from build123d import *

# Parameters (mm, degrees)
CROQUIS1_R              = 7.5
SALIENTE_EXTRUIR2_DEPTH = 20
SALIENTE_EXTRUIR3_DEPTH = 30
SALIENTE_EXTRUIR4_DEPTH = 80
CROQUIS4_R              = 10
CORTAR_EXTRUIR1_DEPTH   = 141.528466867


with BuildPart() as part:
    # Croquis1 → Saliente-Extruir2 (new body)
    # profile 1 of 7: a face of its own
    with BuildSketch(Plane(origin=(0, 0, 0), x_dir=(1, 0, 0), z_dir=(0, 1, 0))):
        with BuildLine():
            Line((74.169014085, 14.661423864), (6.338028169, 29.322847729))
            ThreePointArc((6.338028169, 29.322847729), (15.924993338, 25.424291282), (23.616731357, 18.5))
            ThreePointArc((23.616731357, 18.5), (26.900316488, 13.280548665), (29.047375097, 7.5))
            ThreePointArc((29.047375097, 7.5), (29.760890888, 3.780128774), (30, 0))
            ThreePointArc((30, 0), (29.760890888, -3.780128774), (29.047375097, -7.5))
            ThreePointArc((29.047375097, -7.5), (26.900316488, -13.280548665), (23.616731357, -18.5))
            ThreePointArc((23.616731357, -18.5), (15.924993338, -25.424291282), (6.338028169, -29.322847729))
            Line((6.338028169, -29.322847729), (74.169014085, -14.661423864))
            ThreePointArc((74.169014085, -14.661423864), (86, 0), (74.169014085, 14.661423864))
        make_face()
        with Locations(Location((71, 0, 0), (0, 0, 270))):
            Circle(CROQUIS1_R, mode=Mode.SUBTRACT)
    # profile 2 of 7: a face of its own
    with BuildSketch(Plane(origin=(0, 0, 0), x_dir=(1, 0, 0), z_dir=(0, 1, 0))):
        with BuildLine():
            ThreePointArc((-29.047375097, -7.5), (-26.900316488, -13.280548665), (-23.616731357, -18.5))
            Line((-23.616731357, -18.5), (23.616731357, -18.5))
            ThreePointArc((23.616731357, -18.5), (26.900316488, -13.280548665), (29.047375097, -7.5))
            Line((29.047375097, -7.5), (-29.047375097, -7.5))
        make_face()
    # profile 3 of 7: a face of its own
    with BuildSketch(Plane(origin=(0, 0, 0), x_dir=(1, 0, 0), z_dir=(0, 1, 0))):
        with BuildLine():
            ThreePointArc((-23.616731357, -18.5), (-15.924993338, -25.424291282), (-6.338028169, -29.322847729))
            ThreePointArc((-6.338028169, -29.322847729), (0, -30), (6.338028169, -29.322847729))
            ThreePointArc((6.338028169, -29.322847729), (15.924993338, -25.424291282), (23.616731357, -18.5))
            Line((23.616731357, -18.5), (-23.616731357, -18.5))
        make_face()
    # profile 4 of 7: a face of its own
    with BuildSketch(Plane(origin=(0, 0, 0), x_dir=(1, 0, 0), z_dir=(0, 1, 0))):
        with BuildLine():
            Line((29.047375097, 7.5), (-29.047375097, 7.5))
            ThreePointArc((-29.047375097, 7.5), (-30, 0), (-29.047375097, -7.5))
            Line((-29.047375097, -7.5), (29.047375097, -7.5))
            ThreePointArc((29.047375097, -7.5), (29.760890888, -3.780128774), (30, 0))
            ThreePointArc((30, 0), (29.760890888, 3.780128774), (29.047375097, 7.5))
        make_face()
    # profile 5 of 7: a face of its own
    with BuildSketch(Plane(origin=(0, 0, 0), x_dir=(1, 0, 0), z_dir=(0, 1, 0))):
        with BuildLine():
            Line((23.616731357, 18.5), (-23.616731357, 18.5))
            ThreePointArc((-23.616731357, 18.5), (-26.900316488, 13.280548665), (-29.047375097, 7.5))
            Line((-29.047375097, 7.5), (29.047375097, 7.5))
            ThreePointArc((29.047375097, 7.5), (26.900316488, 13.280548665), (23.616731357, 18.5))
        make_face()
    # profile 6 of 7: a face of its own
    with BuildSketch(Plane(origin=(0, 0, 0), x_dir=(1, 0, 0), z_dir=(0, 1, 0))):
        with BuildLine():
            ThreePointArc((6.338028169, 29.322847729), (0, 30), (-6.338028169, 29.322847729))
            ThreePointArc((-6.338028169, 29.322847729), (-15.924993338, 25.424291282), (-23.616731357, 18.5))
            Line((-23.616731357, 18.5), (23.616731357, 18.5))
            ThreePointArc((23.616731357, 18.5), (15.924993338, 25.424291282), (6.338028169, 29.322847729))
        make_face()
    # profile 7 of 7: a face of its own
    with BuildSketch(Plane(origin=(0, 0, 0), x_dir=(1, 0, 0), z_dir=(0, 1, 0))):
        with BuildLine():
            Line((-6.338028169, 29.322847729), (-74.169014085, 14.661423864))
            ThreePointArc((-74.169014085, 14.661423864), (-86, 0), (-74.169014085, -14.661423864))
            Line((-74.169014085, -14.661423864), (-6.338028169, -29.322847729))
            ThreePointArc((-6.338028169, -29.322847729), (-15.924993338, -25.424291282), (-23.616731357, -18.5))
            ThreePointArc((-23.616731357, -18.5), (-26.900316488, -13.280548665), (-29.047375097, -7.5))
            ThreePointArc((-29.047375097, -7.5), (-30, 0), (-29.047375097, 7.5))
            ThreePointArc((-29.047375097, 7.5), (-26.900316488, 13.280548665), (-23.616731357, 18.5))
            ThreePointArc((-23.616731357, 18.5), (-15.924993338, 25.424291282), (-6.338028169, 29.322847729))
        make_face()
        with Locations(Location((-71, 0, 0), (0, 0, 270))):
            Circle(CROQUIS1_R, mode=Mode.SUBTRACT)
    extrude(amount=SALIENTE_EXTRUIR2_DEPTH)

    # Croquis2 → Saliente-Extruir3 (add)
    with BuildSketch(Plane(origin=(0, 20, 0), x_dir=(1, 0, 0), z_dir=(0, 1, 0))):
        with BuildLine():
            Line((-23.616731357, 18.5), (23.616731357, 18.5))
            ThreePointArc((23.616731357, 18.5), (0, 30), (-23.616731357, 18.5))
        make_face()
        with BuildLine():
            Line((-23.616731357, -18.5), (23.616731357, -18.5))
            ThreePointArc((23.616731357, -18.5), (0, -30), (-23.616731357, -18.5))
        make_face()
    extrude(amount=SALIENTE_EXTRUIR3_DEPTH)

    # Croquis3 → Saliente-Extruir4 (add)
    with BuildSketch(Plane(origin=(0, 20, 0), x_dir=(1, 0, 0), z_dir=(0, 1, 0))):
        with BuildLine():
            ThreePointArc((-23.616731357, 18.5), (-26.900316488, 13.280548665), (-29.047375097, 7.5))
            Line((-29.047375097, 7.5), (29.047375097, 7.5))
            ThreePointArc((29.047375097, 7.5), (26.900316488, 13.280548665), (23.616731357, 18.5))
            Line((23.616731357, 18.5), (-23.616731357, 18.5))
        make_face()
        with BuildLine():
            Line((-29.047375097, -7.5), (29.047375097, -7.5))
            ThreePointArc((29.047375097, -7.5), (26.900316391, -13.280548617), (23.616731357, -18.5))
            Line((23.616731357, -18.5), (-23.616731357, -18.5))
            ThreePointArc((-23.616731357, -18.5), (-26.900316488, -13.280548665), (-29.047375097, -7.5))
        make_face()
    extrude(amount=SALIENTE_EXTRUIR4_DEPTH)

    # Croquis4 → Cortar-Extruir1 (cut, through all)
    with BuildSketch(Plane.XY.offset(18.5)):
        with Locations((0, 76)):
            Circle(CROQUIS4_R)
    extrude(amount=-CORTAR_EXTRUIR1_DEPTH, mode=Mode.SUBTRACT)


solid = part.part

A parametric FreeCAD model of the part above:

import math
import FreeCAD as App
import Part
import Sketcher

doc = App.newDocument("Part")
body = doc.addObject("PartDesign::Body", "Body")

# Sketch on XZ plane
sketch1 = body.newObject("Sketcher::SketchObject", "Sketch")
sketch1.AttachmentSupport = (doc.getObject("XZ_Plane"), [""])
sketch1.MapMode = "FlatFace"
sketch1.addGeometry([
    Part.LineSegment(App.Vector(74.169014, -14.661424, 0), App.Vector(6.338028, -29.322848, 0)),  # 0
    Part.ArcOfCircle(Part.Circle(App.Vector(0, 0, 0), App.Vector(0, 0, 1), 30), math.radians(-102.196648), math.radians(-77.803352)),  # 1
    Part.LineSegment(App.Vector(-6.338028, -29.322848, 0), App.Vector(-74.169014, -14.661424, 0)),  # 2
    Part.ArcOfCircle(Part.Circle(App.Vector(-71, 0, 0), App.Vector(0, 0, 1), 15), math.radians(102.196648), math.radians(257.803352)),  # 3
    Part.LineSegment(App.Vector(-74.169014, 14.661424, 0), App.Vector(-6.338028, 29.322848, 0)),  # 4
    Part.ArcOfCircle(Part.Circle(App.Vector(0, 0, 0), App.Vector(0, 0, 1), 30), math.radians(77.803352), math.radians(102.196648)),  # 5
    Part.LineSegment(App.Vector(6.338028, 29.322848, 0), App.Vector(74.169014, 14.661424, 0)),  # 6
    Part.ArcOfCircle(Part.Circle(App.Vector(71, 0, 0), App.Vector(0, 0, 1), 15), math.radians(-77.803352), math.radians(77.803352)),  # 7
    Part.Circle(App.Vector(71, 0, 0), App.Vector(0, 0, 1), 7.5),  # 8
    Part.Circle(App.Vector(-71, 0, 0), App.Vector(0, 0, 1), 7.5),  # 9
], False)
sketch1.addConstraint([
    Sketcher.Constraint("Tangent", 0, 2, 1, 2),
    Sketcher.Constraint("Tangent", 1, 1, 2, 1),
    Sketcher.Constraint("Tangent", 2, 2, 3, 2),
    Sketcher.Constraint("Tangent", 3, 1, 4, 1),
    Sketcher.Constraint("Tangent", 4, 2, 5, 2),
    Sketcher.Constraint("Tangent", 5, 1, 6, 1),
    Sketcher.Constraint("Tangent", 6, 2, 7, 2),
    Sketcher.Constraint("Tangent", 7, 1, 0, 1),
    Sketcher.Constraint("Coincident", 1, 3, -1, 1),
    Sketcher.Constraint("Coincident", 5, 3, -1, 1),
    Sketcher.Constraint("Coincident", 8, 3, 7, 3),
    Sketcher.Constraint("Coincident", 9, 3, 3, 3),
    Sketcher.Constraint("Equal", 1, 5),
    Sketcher.Constraint("Equal", 3, 7),
    Sketcher.Constraint("Equal", 8, 9),
    Sketcher.Constraint("Symmetric", 3, 3, 7, 3, -1, 1),
    Sketcher.Constraint("PointOnObject", 3, 3, -1),
    Sketcher.Constraint("Diameter", 8, 15.0),
    Sketcher.Constraint("Radius", 1, 30.0),
    Sketcher.Constraint("Radius", 3, 15.0),
    Sketcher.Constraint("DistanceX", 3, 3, -1, 1, 71.0),
])
pad1 = body.newObject("PartDesign::Pad", "Pad")
pad1.Profile = sketch1
pad1.Length = 20
pad1.Reversed = True

# Sketch on XZ plane
sketch2 = body.newObject("Sketcher::SketchObject", "Sketch001")
sketch2.AttachmentSupport = (doc.getObject("XZ_Plane"), [""])
sketch2.MapMode = "FlatFace"
sketch2.AttachmentOffset = App.Placement(App.Vector(0, 0, -20), App.Rotation())
sketch2.addGeometry([
    Part.LineSegment(App.Vector(-23.616731, -18.5, 0), App.Vector(23.616731, -18.5, 0)),
    Part.ArcOfCircle(Part.Circle(App.Vector(0, 0, 0), App.Vector(0, 0, 1), 30), math.radians(-141.926877), math.radians(-38.073123)),
    Part.LineSegment(App.Vector(23.616731, 18.5, 0), App.Vector(-23.616731, 18.5, 0)),
    Part.ArcOfCircle(Part.Circle(App.Vector(0, 0, 0), App.Vector(0, 0, 1), 30), math.radians(38.073123), math.radians(141.926877)),
], False)
sketch2.addConstraint([
    Sketcher.Constraint("Coincident", 0, 1, 1, 1),
    Sketcher.Constraint("Coincident", 1, 2, 0, 2),
    Sketcher.Constraint("Coincident", 2, 1, 3, 1),
    Sketcher.Constraint("Coincident", 3, 2, 2, 2),
    Sketcher.Constraint("Horizontal", 0),
    Sketcher.Constraint("Horizontal", 2),
    Sketcher.Constraint("Coincident", 1, 3, -1, 1),
    Sketcher.Constraint("Coincident", 3, 3, -1, 1),
    Sketcher.Constraint("Equal", 1, 3),
    Sketcher.Constraint("Vertical", 1, 2, 2, 1),
    Sketcher.Constraint("Radius", 1, 30.0),
    Sketcher.Constraint("DistanceY", 1, 2, 2, 1, 37.0),
])
pad2 = body.newObject("PartDesign::Pad", "Pad001")
pad2.Profile = sketch2
pad2.Length = 30
pad2.Reversed = True

# Sketch on XZ plane
sketch3 = body.newObject("Sketcher::SketchObject", "Sketch002")
sketch3.AttachmentSupport = (doc.getObject("XZ_Plane"), [""])
sketch3.MapMode = "FlatFace"
sketch3.AttachmentOffset = App.Placement(App.Vector(0, 0, -20), App.Rotation())
sketch3.addGeometry([
    Part.ArcOfCircle(Part.Circle(App.Vector(0, 0, 0), App.Vector(0, 0, 1), 30), math.radians(-165.522488), math.radians(-141.926877)),  # 0
    Part.LineSegment(App.Vector(-29.047375, -7.5, 0), App.Vector(29.047375, -7.5, 0)),  # 1
    Part.ArcOfCircle(Part.Circle(App.Vector(0, 0, 0), App.Vector(0, 0, 1), 30), math.radians(-38.073123), math.radians(-14.477512)),  # 2
    Part.LineSegment(App.Vector(23.616731, -18.5, 0), App.Vector(-23.616731, -18.5, 0)),  # 3
    Part.LineSegment(App.Vector(29.047375, 7.5, 0), App.Vector(-29.047375, 7.5, 0)),  # 4
    Part.ArcOfCircle(Part.Circle(App.Vector(0, 0, 0), App.Vector(0, 0, 1), 30), math.radians(141.926877), math.radians(165.522488)),  # 5
    Part.LineSegment(App.Vector(-23.616731, 18.5, 0), App.Vector(23.616731, 18.5, 0)),  # 6
    Part.ArcOfCircle(Part.Circle(App.Vector(-0.000005, -0.000002, 0), App.Vector(0, 0, 1), 30.000005), math.radians(14.477514), math.radians(38.073121)),  # 7
], False)
sketch3.addConstraint([
    Sketcher.Constraint("Coincident", 0, 1, 1, 1),
    Sketcher.Constraint("Coincident", 1, 2, 2, 2),
    Sketcher.Constraint("Coincident", 2, 1, 3, 1),
    Sketcher.Constraint("Coincident", 3, 2, 0, 2),
    Sketcher.Constraint("Coincident", 4, 2, 5, 2),
    Sketcher.Constraint("Coincident", 5, 1, 6, 1),
    Sketcher.Constraint("Coincident", 6, 2, 7, 2),
    Sketcher.Constraint("Coincident", 7, 1, 4, 1),
    Sketcher.Constraint("Horizontal", 1),
    Sketcher.Constraint("Horizontal", 3),
    Sketcher.Constraint("Horizontal", 4),
    Sketcher.Constraint("Horizontal", 6),
    Sketcher.Constraint("Coincident", 0, 3, -1, 1),
    Sketcher.Constraint("Coincident", 2, 3, -1, 1),
    Sketcher.Constraint("Coincident", 5, 3, -1, 1),
    Sketcher.Constraint("Coincident", 7, 3, -1, 1),
    Sketcher.Constraint("Equal", 0, 2),
    Sketcher.Constraint("Equal", 2, 5),
    Sketcher.Constraint("Symmetric", 3, 2, 6, 2, -1, 1),
    Sketcher.Constraint("Vertical", 0, 1, 4, 2),
    Sketcher.Constraint("Radius", 0, 30.0),
    Sketcher.Constraint("DistanceY", 2, 1, 1, 2, 11.0),
    Sketcher.Constraint("DistanceY", 0, 1, 4, 2, 15.0),
])
pad3 = body.newObject("PartDesign::Pad", "Pad002")
pad3.Profile = sketch3
pad3.Length = 80
pad3.Reversed = True

# Sketch on XY plane
sketch4 = body.newObject("Sketcher::SketchObject", "Sketch003")
sketch4.AttachmentSupport = (doc.getObject("XY_Plane"), [""])
sketch4.MapMode = "FlatFace"
sketch4.AttachmentOffset = App.Placement(App.Vector(0, 0, 18.5), App.Rotation())
sketch4.addGeometry(Part.Circle(App.Vector(0, 76, 0), App.Vector(0, 0, 1), 10), False)
sketch4.addConstraint([
    Sketcher.Constraint("PointOnObject", 0, 3, -2),
    Sketcher.Constraint("Diameter", 0, 20.0),
    Sketcher.Constraint("DistanceY", -1, 1, 0, 3, 76.0),
])
pocket1 = body.newObject("PartDesign::Pocket", "Pocket")
pocket1.Profile = sketch4
pocket1.Type = "ThroughAll"

doc.recompute()
